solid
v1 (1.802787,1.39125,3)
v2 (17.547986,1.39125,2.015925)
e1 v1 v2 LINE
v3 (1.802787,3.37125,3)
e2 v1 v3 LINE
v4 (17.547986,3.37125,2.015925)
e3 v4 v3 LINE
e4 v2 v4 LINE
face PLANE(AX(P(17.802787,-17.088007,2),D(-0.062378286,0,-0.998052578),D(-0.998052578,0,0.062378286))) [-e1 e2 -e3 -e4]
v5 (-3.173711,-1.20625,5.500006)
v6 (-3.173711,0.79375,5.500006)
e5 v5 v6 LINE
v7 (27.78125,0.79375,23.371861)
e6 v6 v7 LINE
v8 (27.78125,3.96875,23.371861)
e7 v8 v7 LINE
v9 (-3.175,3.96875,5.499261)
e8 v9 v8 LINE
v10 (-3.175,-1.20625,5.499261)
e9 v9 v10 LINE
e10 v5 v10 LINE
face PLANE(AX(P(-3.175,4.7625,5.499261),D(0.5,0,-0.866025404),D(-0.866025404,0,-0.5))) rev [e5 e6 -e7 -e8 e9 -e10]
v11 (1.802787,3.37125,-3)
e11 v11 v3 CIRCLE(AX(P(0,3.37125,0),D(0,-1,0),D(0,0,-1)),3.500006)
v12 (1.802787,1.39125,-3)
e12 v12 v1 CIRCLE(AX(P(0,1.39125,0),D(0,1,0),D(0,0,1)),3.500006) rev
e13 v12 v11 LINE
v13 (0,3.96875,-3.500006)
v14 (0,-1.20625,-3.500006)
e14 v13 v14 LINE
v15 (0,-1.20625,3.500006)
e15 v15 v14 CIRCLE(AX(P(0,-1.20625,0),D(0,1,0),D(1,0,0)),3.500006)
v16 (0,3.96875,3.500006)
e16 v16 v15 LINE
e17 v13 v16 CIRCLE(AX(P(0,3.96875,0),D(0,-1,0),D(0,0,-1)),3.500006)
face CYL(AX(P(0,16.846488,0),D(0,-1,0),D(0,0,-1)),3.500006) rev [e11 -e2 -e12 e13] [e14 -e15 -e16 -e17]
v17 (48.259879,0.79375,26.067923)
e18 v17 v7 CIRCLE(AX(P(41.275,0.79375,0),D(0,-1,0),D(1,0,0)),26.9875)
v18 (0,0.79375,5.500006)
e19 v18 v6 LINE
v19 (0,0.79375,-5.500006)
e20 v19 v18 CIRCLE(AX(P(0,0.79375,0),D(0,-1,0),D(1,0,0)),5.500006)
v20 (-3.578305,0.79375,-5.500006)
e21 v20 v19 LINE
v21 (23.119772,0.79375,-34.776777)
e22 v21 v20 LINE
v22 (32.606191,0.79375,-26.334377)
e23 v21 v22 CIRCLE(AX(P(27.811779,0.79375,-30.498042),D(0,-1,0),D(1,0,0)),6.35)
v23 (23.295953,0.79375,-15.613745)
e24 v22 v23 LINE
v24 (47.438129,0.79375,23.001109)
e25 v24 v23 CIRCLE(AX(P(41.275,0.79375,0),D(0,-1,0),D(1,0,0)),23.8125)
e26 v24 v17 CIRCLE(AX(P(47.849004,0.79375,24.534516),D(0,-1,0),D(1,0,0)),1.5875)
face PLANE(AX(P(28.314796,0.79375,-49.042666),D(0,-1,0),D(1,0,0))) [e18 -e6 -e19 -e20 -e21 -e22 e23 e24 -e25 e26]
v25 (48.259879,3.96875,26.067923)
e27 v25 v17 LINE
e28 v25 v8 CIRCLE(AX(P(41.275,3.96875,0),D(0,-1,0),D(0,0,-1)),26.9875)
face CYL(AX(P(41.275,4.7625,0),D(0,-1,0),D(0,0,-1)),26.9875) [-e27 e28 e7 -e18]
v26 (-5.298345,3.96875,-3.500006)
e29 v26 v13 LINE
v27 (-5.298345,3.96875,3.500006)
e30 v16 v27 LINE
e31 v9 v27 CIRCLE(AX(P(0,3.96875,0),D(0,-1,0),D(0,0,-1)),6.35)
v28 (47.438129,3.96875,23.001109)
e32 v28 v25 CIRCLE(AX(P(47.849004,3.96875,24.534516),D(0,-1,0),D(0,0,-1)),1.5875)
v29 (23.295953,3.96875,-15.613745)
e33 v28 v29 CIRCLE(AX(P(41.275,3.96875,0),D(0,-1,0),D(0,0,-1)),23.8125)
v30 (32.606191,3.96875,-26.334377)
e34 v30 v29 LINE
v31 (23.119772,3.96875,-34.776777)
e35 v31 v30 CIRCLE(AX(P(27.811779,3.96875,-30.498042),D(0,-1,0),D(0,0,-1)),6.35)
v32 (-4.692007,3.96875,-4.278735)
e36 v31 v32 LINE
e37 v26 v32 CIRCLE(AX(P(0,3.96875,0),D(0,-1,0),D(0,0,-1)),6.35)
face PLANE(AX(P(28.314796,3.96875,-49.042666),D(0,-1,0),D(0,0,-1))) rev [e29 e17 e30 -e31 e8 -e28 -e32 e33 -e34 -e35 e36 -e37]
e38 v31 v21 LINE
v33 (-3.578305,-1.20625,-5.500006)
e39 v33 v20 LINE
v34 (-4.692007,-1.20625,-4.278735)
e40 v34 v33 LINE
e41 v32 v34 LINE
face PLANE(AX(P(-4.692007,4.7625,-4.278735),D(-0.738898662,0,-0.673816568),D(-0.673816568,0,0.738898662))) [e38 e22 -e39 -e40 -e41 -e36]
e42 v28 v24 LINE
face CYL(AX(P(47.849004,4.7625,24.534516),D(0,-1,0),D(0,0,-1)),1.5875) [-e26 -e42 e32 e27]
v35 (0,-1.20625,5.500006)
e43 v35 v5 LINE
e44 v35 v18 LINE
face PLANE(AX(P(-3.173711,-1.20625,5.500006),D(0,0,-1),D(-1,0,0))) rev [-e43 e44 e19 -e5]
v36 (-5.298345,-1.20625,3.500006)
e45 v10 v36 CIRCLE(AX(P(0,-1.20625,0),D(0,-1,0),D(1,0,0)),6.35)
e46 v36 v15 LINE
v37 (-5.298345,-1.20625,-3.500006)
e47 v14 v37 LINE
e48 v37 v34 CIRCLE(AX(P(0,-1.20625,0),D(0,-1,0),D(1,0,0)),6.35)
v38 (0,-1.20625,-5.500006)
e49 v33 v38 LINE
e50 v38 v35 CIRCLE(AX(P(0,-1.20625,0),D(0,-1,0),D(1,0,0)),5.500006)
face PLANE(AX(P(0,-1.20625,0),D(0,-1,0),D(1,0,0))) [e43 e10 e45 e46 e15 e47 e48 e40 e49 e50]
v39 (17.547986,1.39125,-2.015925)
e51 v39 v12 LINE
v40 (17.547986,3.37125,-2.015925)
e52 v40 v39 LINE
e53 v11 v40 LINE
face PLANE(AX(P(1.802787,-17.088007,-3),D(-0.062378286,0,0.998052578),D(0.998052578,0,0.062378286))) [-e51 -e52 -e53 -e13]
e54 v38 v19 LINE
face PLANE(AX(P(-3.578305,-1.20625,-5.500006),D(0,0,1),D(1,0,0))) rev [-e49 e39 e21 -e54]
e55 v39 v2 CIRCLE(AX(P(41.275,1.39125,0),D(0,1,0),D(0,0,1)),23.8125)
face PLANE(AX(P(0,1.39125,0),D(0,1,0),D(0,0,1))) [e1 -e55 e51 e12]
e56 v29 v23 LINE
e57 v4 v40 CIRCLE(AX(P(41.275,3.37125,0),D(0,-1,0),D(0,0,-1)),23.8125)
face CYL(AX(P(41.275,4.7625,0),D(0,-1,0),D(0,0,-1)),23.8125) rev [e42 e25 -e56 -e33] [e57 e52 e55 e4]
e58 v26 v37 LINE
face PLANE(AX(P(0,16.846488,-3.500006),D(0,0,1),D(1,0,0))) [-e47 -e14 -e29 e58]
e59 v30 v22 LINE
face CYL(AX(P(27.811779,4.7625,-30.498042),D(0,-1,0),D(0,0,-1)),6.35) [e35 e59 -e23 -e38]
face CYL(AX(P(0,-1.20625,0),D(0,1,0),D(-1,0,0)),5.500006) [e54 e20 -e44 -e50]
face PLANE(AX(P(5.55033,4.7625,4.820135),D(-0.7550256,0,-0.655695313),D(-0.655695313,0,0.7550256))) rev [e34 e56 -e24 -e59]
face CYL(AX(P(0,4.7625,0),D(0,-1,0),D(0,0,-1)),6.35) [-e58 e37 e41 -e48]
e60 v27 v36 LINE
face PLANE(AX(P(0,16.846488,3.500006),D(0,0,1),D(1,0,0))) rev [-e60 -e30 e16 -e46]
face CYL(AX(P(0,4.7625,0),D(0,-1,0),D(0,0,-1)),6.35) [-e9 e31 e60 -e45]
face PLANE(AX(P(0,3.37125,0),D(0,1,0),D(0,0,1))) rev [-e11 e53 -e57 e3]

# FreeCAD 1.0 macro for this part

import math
import FreeCAD as App
import Part
import Sketcher
Q = App.Units.Quantity


def add_polygon(sketch, points):
    """Adds a closed chain of lines whose ends are joined by coincident constraints."""
    first, n = sketch.GeometryCount, len(points)
    for a, b in zip(points, points[1:] + points[:1]):
        sketch.addGeometry(Part.LineSegment(App.Vector(*a, 0), App.Vector(*b, 0)), False)
    for i in range(n):
        sketch.addConstraint(Sketcher.Constraint("Coincident", first + i, 2, first + (i + 1) % n, 1))

doc = App.newDocument("Part")
body = doc.addObject("PartDesign::Body", "Body")

# Sketch on XZ plane
sketch1 = doc.addObject("Sketcher::SketchObject", "Sketch")
body.addObject(sketch1)
sketch1.AttachmentSupport = (doc.XZ_Plane, [""])
sketch1.MapMode = "FlatFace"
sketch1.addGeometry(Part.ArcOfCircle(Part.Circle(App.Vector(41.275, 0, 0), App.Vector(0, 0, 1), 23.8125), math.radians(75), math.radians(220.972393)), False)
sketch1.addGeometry(Part.LineSegment(App.Vector(23.295953, -15.613745, 0), App.Vector(32.606191, -26.334377, 0)), False)
sketch1.addGeometry(Part.ArcOfCircle(Part.Circle(App.Vector(27.811779, -30.498042, 0), App.Vector(0, 0, 1), 6.35), math.radians(-137.637683), math.radians(40.972393)), False)
sketch1.addGeometry(Part.LineSegment(App.Vector(23.119772, -34.776777, 0), App.Vector(-4.692007, -4.278735, 0)), False)
sketch1.addGeometry(Part.ArcOfCircle(Part.Circle(App.Vector(0, 0, 0), App.Vector(0, 0, 1), 6.35), math.radians(120), math.radians(222.362317)), False)
sketch1.addGeometry(Part.LineSegment(App.Vector(-3.175, 5.499261, 0), App.Vector(27.78125, 23.371861, 0)), False)
sketch1.addGeometry(Part.ArcOfCircle(Part.Circle(App.Vector(41.275, 0, 0), App.Vector(0, 0, 1), 26.9875), math.radians(75), math.radians(120)), False)
sketch1.addGeometry(Part.ArcOfCircle(Part.Circle(App.Vector(47.849004, 24.534516, 0), App.Vector(0, 0, 1), 1.5875), math.radians(-105), math.radians(75)), False)
sketch1.addConstraint(Sketcher.Constraint("Tangent", 0, 2, 1, 1))
sketch1.addConstraint(Sketcher.Constraint("Tangent", 1, 2, 2, 2))
sketch1.addConstraint(Sketcher.Constraint("Tangent", 2, 1, 3, 1))
sketch1.addConstraint(Sketcher.Constraint("Tangent", 3, 2, 4, 2))
sketch1.addConstraint(Sketcher.Constraint("Tangent", 4, 1, 5, 1))
sketch1.addConstraint(Sketcher.Constraint("Tangent", 5, 2, 6, 2))
sketch1.addConstraint(Sketcher.Constraint("Tangent", 6, 1, 7, 2))
sketch1.addConstraint(Sketcher.Constraint("Tangent", 7, 1, 0, 1))
sketch1.addConstraint(Sketcher.Constraint("Coincident", 4, 3, -1, 1))
sketch1.addConstraint(Sketcher.Constraint("Coincident", 6, 3, 0, 3))
sketch1.addConstraint(Sketcher.Constraint("Equal", 2, 4))
sketch1.addConstraint(Sketcher.Constraint("PointOnObject", 0, 3, -1))
sketch1.addConstraint(Sketcher.Constraint("Radius", 2, Q("0.25 in")))
sketch1.addConstraint(Sketcher.Constraint("Angle", 5, Q("30 deg")))
sketch1.addConstraint(Sketcher.Constraint("Radius", 0, Q("0.9375 in")))
sketch1.addConstraint(Sketcher.Constraint("Radius", 6, Q("1.0625 in")))
sketch1.addConstraint(Sketcher.Constraint("Distance", 3, Q("1.625 in")))
sketch1.addConstraint(Sketcher.Constraint("DistanceY", 2, 1, 1, 2, Q("8.4424 mm")))
sketch1.addConstraint(Sketcher.Constraint("DistanceX", -1, 1, 6, 1, Q("48.259879 mm")))
pad1 = doc.addObject("PartDesign::Pad", "Pad")
body.addObject(pad1)
pad1.Profile = sketch1
pad1.Length = Q("0.1875 in")
pad1.Reversed = True

# Sketch on XZ plane
sketch2 = doc.addObject("Sketcher::SketchObject", "Sketch001")
body.addObject(sketch2)
sketch2.AttachmentSupport = (doc.XZ_Plane, [""])
sketch2.MapMode = "FlatFace"
sketch2.addGeometry(Part.LineSegment(App.Vector(0, 3.500006, 0), App.Vector(-5.298345, 3.500006, 0)), False)
sketch2.addGeometry(Part.ArcOfCircle(Part.Circle(App.Vector(0, 0, 0), App.Vector(0, 0, 1), 6.35), math.radians(146.551859), math.radians(213.448141)), False)
sketch2.addGeometry(Part.LineSegment(App.Vector(-5.298345, -3.500006, 0), App.Vector(0, -3.500006, 0)), False)
sketch2.addGeometry(Part.ArcOfCircle(Part.Circle(App.Vector(0, 0, 0), App.Vector(0, 0, 1), 3.500006), math.radians(-90), math.radians(90)), False)
sketch2.addConstraint(Sketcher.Constraint("Coincident", 0, 2, 1, 1))
sketch2.addConstraint(Sketcher.Constraint("Coincident", 1, 2, 2, 1))
sketch2.addConstraint(Sketcher.Constraint("Tangent", 2, 2, 3, 1))
sketch2.addConstraint(Sketcher.Constraint("Tangent", 3, 2, 0, 1))
sketch2.addConstraint(Sketcher.Constraint("Horizontal", 0))
sketch2.addConstraint(Sketcher.Constraint("Horizontal", 2))
sketch2.addConstraint(Sketcher.Constraint("Coincident", 1, 3, -1, 1))
sketch2.addConstraint(Sketcher.Constraint("Coincident", 3, 3, -1, 1))
sketch2.addConstraint(Sketcher.Constraint("Radius", 1, Q("0.25 in")))
sketch2.addConstraint(Sketcher.Constraint("Radius", 3, Q("3.500006 mm")))
pocket1 = doc.addObject("PartDesign::Pocket", "Pocket")
body.addObject(pocket1)
pocket1.Profile = sketch2
pocket1.Length = 3.37125

# Sketch on XZ plane
sketch3 = doc.addObject("Sketcher::SketchObject", "Sketch002")
body.addObject(sketch3)
sketch3.AttachmentSupport = (doc.XZ_Plane, [""])
sketch3.MapMode = "FlatFace"
sketch3.AttachmentOffset = App.Placement(App.Vector(0, 0, -3.37125), App.Rotation())
sketch3.addGeometry(Part.LineSegment(App.Vector(17.802787, -2, 0), App.Vector(17.802787, 2, 0)), False)
sketch3.addGeometry(Part.LineSegment(App.Vector(17.802787, 2, 0), App.Vector(1.802787, 3, 0)), False)
sketch3.addGeometry(Part.ArcOfCircle(Part.Circle(App.Vector(0, 0, 0), App.Vector(0, 0, 1), 3.500006), math.radians(-58.997126), math.radians(58.997126)), False)
sketch3.addGeometry(Part.LineSegment(App.Vector(1.802787, -3, 0), App.Vector(17.802787, -2, 0)), False)
sketch3.addConstraint(Sketcher.Constraint("Coincident", 0, 2, 1, 1))
sketch3.addConstraint(Sketcher.Constraint("Coincident", 1, 2, 2, 2))
sketch3.addConstraint(Sketcher.Constraint("Coincident", 2, 1, 3, 1))
sketch3.addConstraint(Sketcher.Constraint("Coincident", 3, 2, 0, 1))
sketch3.addConstraint(Sketcher.Constraint("Vertical", 0))
sketch3.addConstraint(Sketcher.Constraint("Coincident", 2, 3, -1, 1))
sketch3.addConstraint(Sketcher.Constraint("Vertical", 1, 2, 2, 1))
sketch3.addConstraint(Sketcher.Constraint("Equal", 1, 3))
sketch3.addConstraint(Sketcher.Constraint("DistanceY", 0, 1, 0, 2, Q("4 mm")))
sketch3.addConstraint(Sketcher.Constraint("Radius", 2, Q("3.500006 mm")))
sketch3.addConstraint(Sketcher.Constraint("DistanceY", -1, 1, 1, 2, Q("3 mm")))
sketch3.addConstraint(Sketcher.Constraint("DistanceX", 1, 2, 0, 2, Q("16 mm")))
pocket2 = doc.addObject("PartDesign::Pocket", "Pocket001")
body.addObject(pocket2)
pocket2.Profile = sketch3
pocket2.Length = 1.98
pocket2.Reversed = True

# Sketch on an angled plane
sketch4 = doc.addObject("Sketcher::SketchObject", "Sketch003")
body.addObject(sketch4)
sketch4.Placement = App.Placement(App.Vector(-3.175, 0, 5.499261), App.Rotation(App.Vector(0.866025404, 0, 0.5), App.Vector(0, 1, 0), App.Vector(-0.5, 0, 0.866025404), "ZXY"))
add_polygon(sketch4, [(-6.35, 4.7625), (-6.35, 3.96875), (55.293211, 3.96875), (55.293211, 4.7625)])  # lines 0-3
add_polygon(sketch4, [(55.293211, 0), (55.293211, 0.79375), (-6.35, 0.79375), (-6.35, 0)])  # lines 4-7
sketch4.addConstraint(Sketcher.Constraint("Vertical", 0))
sketch4.addConstraint(Sketcher.Constraint("Horizontal", 1))
sketch4.addConstraint(Sketcher.Constraint("Vertical", 2))
sketch4.addConstraint(Sketcher.Constraint("Horizontal", 3))
sketch4.addConstraint(Sketcher.Constraint("Vertical", 4))
sketch4.addConstraint(Sketcher.Constraint("Horizontal", 5))
sketch4.addConstraint(Sketcher.Constraint("Vertical", 6))
sketch4.addConstraint(Sketcher.Constraint("Horizontal", 7))
sketch4.addConstraint(Sketcher.Constraint("PointOnObject", 6, 2, -1))
sketch4.addConstraint(Sketcher.Constraint("Vertical", 2, 2, 4, 2))
sketch4.addConstraint(Sketcher.Constraint("Vertical", 3, 2, 5, 2))
sketch4.addConstraint(Sketcher.Constraint("Equal", 2, 4))
sketch4.addConstraint(Sketcher.Constraint("DistanceY", 0, 2, 0, 1, Q("0.03125 in")))
sketch4.addConstraint(Sketcher.Constraint("DistanceX", 0, 2, -1, 1, Q("0.25 in")))
sketch4.addConstraint(Sketcher.Constraint("DistanceY", -1, 1, 0, 2, Q("0.15625 in")))
sketch4.addConstraint(Sketcher.Constraint("DistanceX", 1, 1, 1, 2, Q("61.643211 mm")))
pocket3 = doc.addObject("PartDesign::Pocket", "Pocket002")
body.addObject(pocket3)
pocket3.Profile = sketch4
pocket3.Type = "ThroughAll"

# Sketch on XZ plane
sketch5 = doc.addObject("Sketcher::SketchObject", "Sketch004")
body.addObject(sketch5)
sketch5.AttachmentSupport = (doc.XZ_Plane, [""])
sketch5.MapMode = "FlatFace"
sketch5.AttachmentOffset = App.Placement(App.Vector(0, 0, -3.37125), App.Rotation())
sketch5.addGeometry(Part.LineSegment(App.Vector(0, 3.500006, 0), App.Vector(-5.298345, 3.500006, 0)), False)
sketch5.addGeometry(Part.ArcOfCircle(Part.Circle(App.Vector(0, 0, 0), App.Vector(0, 0, 1), 6.35), math.radians(146.551859), math.radians(213.448141)), False)
sketch5.addGeometry(Part.LineSegment(App.Vector(-5.298345, -3.500006, 0), App.Vector(0, -3.500006, 0)), False)
sketch5.addGeometry(Part.ArcOfCircle(Part.Circle(App.Vector(0, 0, 0), App.Vector(0, 0, 1), 3.500006), math.radians(-90), math.radians(90)), False)
sketch5.addConstraint(Sketcher.Constraint("Coincident", 0, 2, 1, 1))
sketch5.addConstraint(Sketcher.Constraint("Coincident", 1, 2, 2, 1))
sketch5.addConstraint(Sketcher.Constraint("Tangent", 2, 2, 3, 1))
sketch5.addConstraint(Sketcher.Constraint("Tangent", 3, 2, 0, 1))
sketch5.addConstraint(Sketcher.Constraint("Horizontal", 0))
sketch5.addConstraint(Sketcher.Constraint("Horizontal", 2))
sketch5.addConstraint(Sketcher.Constraint("Coincident", 1, 3, -1, 1))
sketch5.addConstraint(Sketcher.Constraint("Coincident", 3, 3, -1, 1))
sketch5.addConstraint(Sketcher.Constraint("Radius", 1, Q("0.25 in")))
sketch5.addConstraint(Sketcher.Constraint("Radius", 3, Q("3.500006 mm")))
pocket4 = doc.addObject("PartDesign::Pocket", "Pocket003")
body.addObject(pocket4)
pocket4.Profile = sketch5
pocket4.Length = Q("0.1 in")

# Sketch on XZ plane
sketch6 = doc.addObject("Sketcher::SketchObject", "Sketch005")
body.addObject(sketch6)
sketch6.AttachmentSupport = (doc.XZ_Plane, [""])
sketch6.MapMode = "FlatFace"
sketch6.AttachmentOffset = App.Placement(App.Vector(0, 0, -0.03125 * 25.4), App.Rotation())
sketch6.addGeometry(Part.LineSegment(App.Vector(-3.173711, 5.500006, 0), App.Vector(-3.175, 5.499261, 0)), False)
sketch6.addGeometry(Part.ArcOfCircle(Part.Circle(App.Vector(0, 0, 0), App.Vector(0, 0, 1), 6.35), math.radians(120), math.radians(146.551859)), False)
sketch6.addGeometry(Part.LineSegment(App.Vector(-5.298345, 3.500006, 0), App.Vector(0, 3.500006, 0)), False)
sketch6.addGeometry(Part.ArcOfCircle(Part.Circle(App.Vector(0, 0, 0), App.Vector(0, 0, 1), 3.500006), math.radians(-90), math.radians(90)), False)
sketch6.addGeometry(Part.LineSegment(App.Vector(0, -3.500006, 0), App.Vector(-5.298345, -3.500006, 0)), False)
sketch6.addGeometry(Part.ArcOfCircle(Part.Circle(App.Vector(0, 0, 0), App.Vector(0, 0, 1), 6.35), math.radians(-146.551859), math.radians(-137.637683)), False)
sketch6.addGeometry(Part.LineSegment(App.Vector(-4.692007, -4.278735, 0), App.Vector(-3.578305, -5.500006, 0)), False)
sketch6.addGeometry(Part.LineSegment(App.Vector(-3.578305, -5.500006, 0), App.Vector(0, -5.500006, 0)), False)
sketch6.addGeometry(Part.ArcOfCircle(Part.Circle(App.Vector(0, 0, 0), App.Vector(0, 0, 1), 5.500006), math.radians(-90), math.radians(90)), False)
sketch6.addGeometry(Part.LineSegment(App.Vector(0, 5.500006, 0), App.Vector(-3.173711, 5.500006, 0)), False)
sketch6.addConstraint(Sketcher.Constraint("Tangent", 0, 2, 1, 1))
sketch6.addConstraint(Sketcher.Constraint("Coincident", 1, 2, 2, 1))
sketch6.addConstraint(Sketcher.Constraint("Tangent", 2, 2, 3, 2))
sketch6.addConstraint(Sketcher.Constraint("Tangent", 3, 1, 4, 1))
sketch6.addConstraint(Sketcher.Constraint("Coincident", 4, 2, 5, 1))
sketch6.addConstraint(Sketcher.Constraint("Tangent", 5, 2, 6, 1))
sketch6.addConstraint(Sketcher.Constraint("Coincident", 6, 2, 7, 1))
sketch6.addConstraint(Sketcher.Constraint("Tangent", 7, 2, 8, 1))
sketch6.addConstraint(Sketcher.Constraint("Tangent", 8, 2, 9, 1))
sketch6.addConstraint(Sketcher.Constraint("Coincident", 9, 2, 0, 1))
sketch6.addConstraint(Sketcher.Constraint("Horizontal", 2))
sketch6.addConstraint(Sketcher.Constraint("Horizontal", 4))
sketch6.addConstraint(Sketcher.Constraint("Horizontal", 7))
sketch6.addConstraint(Sketcher.Constraint("Horizontal", 9))
sketch6.addConstraint(Sketcher.Constraint("Coincident", 1, 3, -1, 1))
sketch6.addConstraint(Sketcher.Constraint("Coincident", 3, 3, -1, 1))
sketch6.addConstraint(Sketcher.Constraint("Coincident", 5, 3, -1, 1))
sketch6.addConstraint(Sketcher.Constraint("Coincident", 8, 3, -1, 1))
sketch6.addConstraint(Sketcher.Constraint("Equal", 1, 5))
sketch6.addConstraint(Sketcher.Constraint("Radius", 1, Q("0.25 in")))
sketch6.addConstraint(Sketcher.Constraint("DistanceX", 0, 2, -1, 1, Q("0.125 in")))
sketch6.addConstraint(Sketcher.Constraint("Radius", 3, Q("3.500006 mm")))
sketch6.addConstraint(Sketcher.Constraint("Radius", 8, Q("5.500006 mm")))
sketch6.addConstraint(Sketcher.Constraint("DistanceX", 5, 2, 6, 2, Q("1.113701 mm")))
pad2 = doc.addObject("PartDesign::Pad", "Pad001")
body.addObject(pad2)
pad2.Profile = sketch6
pad2.Length = 2

doc.recompute()
